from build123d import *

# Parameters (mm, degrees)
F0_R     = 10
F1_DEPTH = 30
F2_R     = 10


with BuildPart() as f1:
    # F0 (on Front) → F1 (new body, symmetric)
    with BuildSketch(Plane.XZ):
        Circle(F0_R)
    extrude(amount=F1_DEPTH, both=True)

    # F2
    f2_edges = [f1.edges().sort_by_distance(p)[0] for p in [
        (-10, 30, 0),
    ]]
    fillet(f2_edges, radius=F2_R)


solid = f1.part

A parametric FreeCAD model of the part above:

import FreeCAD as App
import Part
import Sketcher


def edges_at(feature, points):
    """Names of the edges that pass closest to the given points."""
    edges = feature.Shape.Edges
    near = lambda p: min(range(len(edges)), key=lambda i: edges[i].distToShape(Part.Vertex(*p))[0])
    return sorted({f"Edge{near(p) + 1}" for p in points})

doc = App.newDocument("Part")
body = doc.addObject("PartDesign::Body", "Body")

# Sketch on XZ plane
sketch1 = body.newObject("Sketcher::SketchObject", "Sketch")
sketch1.AttachmentSupport = (doc.getObject("XZ_Plane"), [""])
sketch1.MapMode = "FlatFace"
sketch1.addGeometry(Part.Circle(App.Vector(0, 0, 0), App.Vector(0, 0, 1), 10), False)
sketch1.addConstraint(Sketcher.Constraint("Coincident", 0, 3, -1, 1))
sketch1.addConstraint(Sketcher.Constraint("Diameter", 0, 20.0))
pad1 = body.newObject("PartDesign::Pad", "Pad")
pad1.Profile = sketch1
pad1.Length = 60
pad1.Midplane = True
doc.recompute()

fillet = body.newObject("PartDesign::Fillet", "Fillet")
fillet.Base = (pad1, edges_at(pad1, [(-10, 30, 0)]))
fillet.Radius = 10

doc.recompute()
